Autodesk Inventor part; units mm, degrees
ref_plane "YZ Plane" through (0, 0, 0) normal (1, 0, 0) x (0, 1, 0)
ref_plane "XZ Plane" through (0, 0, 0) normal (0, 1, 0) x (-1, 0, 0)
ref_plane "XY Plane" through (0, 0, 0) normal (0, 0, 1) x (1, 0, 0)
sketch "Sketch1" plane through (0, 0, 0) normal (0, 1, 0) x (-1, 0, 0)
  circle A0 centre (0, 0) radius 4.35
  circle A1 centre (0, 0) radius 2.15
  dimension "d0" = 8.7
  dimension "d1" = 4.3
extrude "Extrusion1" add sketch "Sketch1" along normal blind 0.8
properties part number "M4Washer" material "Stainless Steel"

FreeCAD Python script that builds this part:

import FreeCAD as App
import Part
import Sketcher
from FreeCAD import Vector

doc = App.newDocument("Part")
body = doc.addObject("PartDesign::Body", "Body")

sketch1 = body.newObject("Sketcher::SketchObject", "Sketch")
sketch1.AttachmentSupport = (doc.getObject("XZ_Plane"), [""])
sketch1.MapMode = "FlatFace"
sketch1.addGeometry([
    Part.Circle(Vector(0, 0, 0), Vector(0, 0, 1), 4.3),
    Part.Circle(Vector(0, 0, 0), Vector(0, 0, 1), 2.1),
], False)
sketch1.addConstraint([
    Sketcher.Constraint("Coincident", 0, 3, -1, 1),
    Sketcher.Constraint("Coincident", 1, 3, -1, 1),
    Sketcher.Constraint("Diameter", 0, 8.7),
    Sketcher.Constraint("Diameter", 1, 4.3),
])
pad1 = body.newObject("PartDesign::Pad", "Pad")
pad1.Profile = sketch1
pad1.Length = 0.8
pad1.Reversed = True

doc.recompute()
